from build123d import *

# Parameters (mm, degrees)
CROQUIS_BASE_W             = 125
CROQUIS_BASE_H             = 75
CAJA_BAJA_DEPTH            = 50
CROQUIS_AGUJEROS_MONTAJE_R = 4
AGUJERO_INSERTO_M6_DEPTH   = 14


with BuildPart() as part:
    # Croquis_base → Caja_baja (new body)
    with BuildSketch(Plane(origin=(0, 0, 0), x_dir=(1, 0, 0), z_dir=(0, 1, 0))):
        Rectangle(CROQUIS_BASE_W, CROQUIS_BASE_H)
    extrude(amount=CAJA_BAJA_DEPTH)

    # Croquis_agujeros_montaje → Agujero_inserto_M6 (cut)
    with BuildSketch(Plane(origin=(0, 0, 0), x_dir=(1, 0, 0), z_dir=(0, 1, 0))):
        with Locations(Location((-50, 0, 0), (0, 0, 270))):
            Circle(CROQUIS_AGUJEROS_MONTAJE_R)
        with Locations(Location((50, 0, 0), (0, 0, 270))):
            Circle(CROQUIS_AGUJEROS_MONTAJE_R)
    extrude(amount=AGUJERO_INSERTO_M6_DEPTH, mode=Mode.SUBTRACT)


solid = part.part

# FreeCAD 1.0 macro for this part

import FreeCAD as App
import Part
import Sketcher

V = App.Vector
Q = App.Units.Quantity


def add_polygon(sketch, points):
    """Adds a closed chain of lines whose ends are joined by coincident constraints."""
    first, n = sketch.GeometryCount, len(points)
    for a, b in zip(points, points[1:] + points[:1]):
        sketch.addGeometry(Part.LineSegment(App.Vector(*a, 0), App.Vector(*b, 0)), False)
    for i in range(n):
        sketch.addConstraint(Sketcher.Constraint("Coincident", first + i, 2, first + (i + 1) % n, 1))

doc = App.newDocument("Part")
body = doc.addObject("PartDesign::Body", "Body")

# Sketch on XZ plane
sketch1 = body.newObject("Sketcher::SketchObject", "Sketch")
sketch1.AttachmentSupport = (doc.getObject("XZ_Plane"), [""])
sketch1.MapMode = "FlatFace"
add_polygon(sketch1, [(-62.5, -37.5), (-62.5, 37.5), (62.5, 37.5), (62.5, -37.5)])  # lines 0-3
sketch1.addConstraint([
    Sketcher.Constraint("Vertical", 0),
    Sketcher.Constraint("Horizontal", 1),
    Sketcher.Constraint("Vertical", 2),
    Sketcher.Constraint("Horizontal", 3),
    Sketcher.Constraint("Symmetric", 0, 2, 2, 2, -1, 1),
    Sketcher.Constraint("DistanceX", 1, 1, 1, 2, Q("125 mm")),
    Sketcher.Constraint("DistanceY", 0, 1, 0, 2, Q("75 mm")),
])
pad1 = body.newObject("PartDesign::Pad", "Pad")
pad1.Profile = sketch1
pad1.Length = 50
pad1.Reversed = True

# Sketch on XZ plane
sketch2 = body.newObject("Sketcher::SketchObject", "Sketch001")
sketch2.AttachmentSupport = (doc.getObject("XZ_Plane"), [""])
sketch2.MapMode = "FlatFace"
sketch2.addGeometry([
    Part.Circle(V(-50, 0, 0), V(0, 0, 1), 4),
    Part.Circle(V(50, 0, 0), V(0, 0, 1), 4),
], False)
sketch2.addConstraint([
    Sketcher.Constraint("Equal", 0, 1),
    Sketcher.Constraint("Symmetric", 0, 3, 1, 3, -1, 1),
    Sketcher.Constraint("PointOnObject", 0, 3, -1),
    Sketcher.Constraint("Diameter", 0, Q("8 mm")),
    Sketcher.Constraint("DistanceX", 0, 3, -1, 1, Q("50 mm")),
])
pocket1 = body.newObject("PartDesign::Pocket", "Pocket")
pocket1.Profile = sketch2
pocket1.Length = 14

doc.recompute()
